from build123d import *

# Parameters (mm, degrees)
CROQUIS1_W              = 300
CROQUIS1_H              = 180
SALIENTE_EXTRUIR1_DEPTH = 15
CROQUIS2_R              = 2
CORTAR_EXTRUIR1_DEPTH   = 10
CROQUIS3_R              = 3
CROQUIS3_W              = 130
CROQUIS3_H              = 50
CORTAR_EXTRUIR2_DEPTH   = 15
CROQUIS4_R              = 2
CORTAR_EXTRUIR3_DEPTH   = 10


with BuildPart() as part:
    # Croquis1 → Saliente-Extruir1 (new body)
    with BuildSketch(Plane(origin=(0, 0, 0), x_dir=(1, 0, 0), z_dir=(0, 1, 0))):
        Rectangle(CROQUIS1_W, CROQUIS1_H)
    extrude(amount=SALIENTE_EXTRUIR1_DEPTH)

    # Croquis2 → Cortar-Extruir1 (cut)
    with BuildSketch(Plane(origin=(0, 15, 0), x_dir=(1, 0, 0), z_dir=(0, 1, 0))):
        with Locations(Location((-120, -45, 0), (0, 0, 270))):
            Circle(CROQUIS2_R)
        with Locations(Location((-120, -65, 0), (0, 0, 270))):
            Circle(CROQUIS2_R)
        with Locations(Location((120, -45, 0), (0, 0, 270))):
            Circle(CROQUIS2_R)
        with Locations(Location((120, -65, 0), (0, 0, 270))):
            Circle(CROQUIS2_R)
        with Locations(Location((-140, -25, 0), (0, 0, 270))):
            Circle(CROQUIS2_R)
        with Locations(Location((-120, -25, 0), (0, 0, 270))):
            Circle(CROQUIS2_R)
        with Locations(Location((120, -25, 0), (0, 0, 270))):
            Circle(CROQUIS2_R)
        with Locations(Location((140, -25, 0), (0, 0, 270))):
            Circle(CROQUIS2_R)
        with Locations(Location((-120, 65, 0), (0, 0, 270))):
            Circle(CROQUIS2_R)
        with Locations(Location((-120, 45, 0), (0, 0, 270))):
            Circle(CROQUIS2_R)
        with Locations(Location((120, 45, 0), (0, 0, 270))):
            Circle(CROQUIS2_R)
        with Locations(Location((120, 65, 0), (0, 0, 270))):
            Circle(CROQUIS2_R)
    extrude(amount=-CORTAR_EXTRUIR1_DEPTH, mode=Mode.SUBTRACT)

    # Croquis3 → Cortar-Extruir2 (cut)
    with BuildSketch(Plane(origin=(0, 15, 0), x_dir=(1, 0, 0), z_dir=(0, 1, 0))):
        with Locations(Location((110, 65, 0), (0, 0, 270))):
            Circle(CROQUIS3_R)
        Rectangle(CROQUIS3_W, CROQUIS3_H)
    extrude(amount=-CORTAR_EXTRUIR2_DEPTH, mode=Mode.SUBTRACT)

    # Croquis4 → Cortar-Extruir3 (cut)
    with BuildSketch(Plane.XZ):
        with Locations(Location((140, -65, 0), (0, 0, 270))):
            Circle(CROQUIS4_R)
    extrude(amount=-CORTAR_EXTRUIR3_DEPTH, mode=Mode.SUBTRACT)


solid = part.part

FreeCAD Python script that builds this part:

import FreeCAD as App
import Part
import Sketcher
Q = App.Units.Quantity


def add_polygon(sketch, points):
    """Adds a closed chain of lines whose ends are joined by coincident constraints."""
    first, n = sketch.GeometryCount, len(points)
    for a, b in zip(points, points[1:] + points[:1]):
        sketch.addGeometry(Part.LineSegment(App.Vector(*a, 0), App.Vector(*b, 0)), False)
    for i in range(n):
        sketch.addConstraint(Sketcher.Constraint("Coincident", first + i, 2, first + (i + 1) % n, 1))

doc = App.newDocument("Part")
body = doc.addObject("PartDesign::Body", "Body")

# Sketch on XZ plane
sketch1 = doc.addObject("Sketcher::SketchObject", "Sketch")
body.addObject(sketch1)
sketch1.AttachmentSupport = (doc.XZ_Plane, [""])
sketch1.MapMode = "FlatFace"
add_polygon(sketch1, [(-150, -90), (-150, 90), (150, 90), (150, -90)])  # lines 0-3
sketch1.addConstraint([
    Sketcher.Constraint("Vertical", 0),
    Sketcher.Constraint("Horizontal", 1),
    Sketcher.Constraint("Vertical", 2),
    Sketcher.Constraint("Horizontal", 3),
    Sketcher.Constraint("Symmetric", 0, 2, 2, 2, -1, 1),
    Sketcher.Constraint("DistanceX", 1, 1, 1, 2, Q("300 mm")),
    Sketcher.Constraint("DistanceY", 0, 1, 0, 2, Q("180 mm")),
])
pad1 = doc.addObject("PartDesign::Pad", "Pad")
body.addObject(pad1)
pad1.Profile = sketch1
pad1.Length = 15
pad1.Reversed = True

# Sketch on XZ plane
sketch2 = doc.addObject("Sketcher::SketchObject", "Sketch001")
body.addObject(sketch2)
sketch2.AttachmentSupport = (doc.XZ_Plane, [""])
sketch2.MapMode = "FlatFace"
sketch2.AttachmentOffset = App.Placement(App.Vector(0, 0, -15), App.Rotation())
sketch2.addGeometry([
    Part.Circle(App.Vector(-120, 45, 0), App.Vector(0, 0, 1), 2),  # 0
    Part.Circle(App.Vector(-120, 65, 0), App.Vector(0, 0, 1), 2),  # 1
    Part.Circle(App.Vector(120, 45, 0), App.Vector(0, 0, 1), 2),  # 2
    Part.Circle(App.Vector(120, 65, 0), App.Vector(0, 0, 1), 2),  # 3
    Part.Circle(App.Vector(-140, 25, 0), App.Vector(0, 0, 1), 2),  # 4
    Part.Circle(App.Vector(-120, 25, 0), App.Vector(0, 0, 1), 2),  # 5
    Part.Circle(App.Vector(120, 25, 0), App.Vector(0, 0, 1), 2),  # 6
    Part.Circle(App.Vector(140, 25, 0), App.Vector(0, 0, 1), 2),  # 7
    Part.Circle(App.Vector(-120, -65, 0), App.Vector(0, 0, 1), 2),  # 8
    Part.Circle(App.Vector(-120, -45, 0), App.Vector(0, 0, 1), 2),  # 9
    Part.Circle(App.Vector(120, -45, 0), App.Vector(0, 0, 1), 2),  # 10
    Part.Circle(App.Vector(120, -65, 0), App.Vector(0, 0, 1), 2),  # 11
], False)
sketch2.addConstraint([
    Sketcher.Constraint("Equal", 0, 1),
    Sketcher.Constraint("Equal", 1, 2),
    Sketcher.Constraint("Equal", 2, 3),
    Sketcher.Constraint("Equal", 3, 4),
    Sketcher.Constraint("Equal", 4, 5),
    Sketcher.Constraint("Equal", 5, 6),
    Sketcher.Constraint("Equal", 6, 7),
    Sketcher.Constraint("Equal", 7, 8),
    Sketcher.Constraint("Equal", 8, 9),
    Sketcher.Constraint("Equal", 9, 10),
    Sketcher.Constraint("Equal", 10, 11),
    Sketcher.Constraint("Symmetric", 3, 3, 8, 3, -1, 1),
    Sketcher.Constraint("Symmetric", 2, 3, 9, 3, -1, 1),
    Sketcher.Constraint("Symmetric", 0, 3, 10, 3, -1, 1),
    Sketcher.Constraint("Symmetric", 1, 3, 11, 3, -1, 1),
    Sketcher.Constraint("Symmetric", 0, 3, 2, 3, -2),
    Sketcher.Constraint("Symmetric", 1, 3, 3, 3, -2),
    Sketcher.Constraint("Symmetric", 5, 3, 6, 3, -2),
    Sketcher.Constraint("Symmetric", 4, 3, 7, 3, -2),
    Sketcher.Constraint("Horizontal", 4, 3, 5, 3),
    Sketcher.Constraint("Vertical", 0, 3, 1, 3),
    Sketcher.Constraint("Vertical", 1, 3, 5, 3),
    Sketcher.Constraint("Diameter", 0, Q("4 mm")),
    Sketcher.Constraint("DistanceX", 0, 3, -1, 1, Q("120 mm")),
    Sketcher.Constraint("DistanceY", -1, 1, 0, 3, Q("45 mm")),
    Sketcher.Constraint("DistanceY", -1, 1, 1, 3, Q("65 mm")),
    Sketcher.Constraint("DistanceX", 4, 3, -1, 1, Q("140 mm")),
    Sketcher.Constraint("DistanceY", -1, 1, 4, 3, Q("25 mm")),
])
pocket1 = doc.addObject("PartDesign::Pocket", "Pocket")
body.addObject(pocket1)
pocket1.Profile = sketch2
pocket1.Length = 10
pocket1.Reversed = True

# Sketch on XZ plane
sketch3 = doc.addObject("Sketcher::SketchObject", "Sketch002")
body.addObject(sketch3)
sketch3.AttachmentSupport = (doc.XZ_Plane, [""])
sketch3.MapMode = "FlatFace"
sketch3.AttachmentOffset = App.Placement(App.Vector(0, 0, -15), App.Rotation())
sketch3.addGeometry(Part.Circle(App.Vector(110, -65, 0), App.Vector(0, 0, 1), 3), False)  # 0
add_polygon(sketch3, [(-65, -25), (-65, 25), (65, 25), (65, -25)])  # lines 1-4
sketch3.addConstraint([
    Sketcher.Constraint("Vertical", 1),
    Sketcher.Constraint("Horizontal", 2),
    Sketcher.Constraint("Vertical", 3),
    Sketcher.Constraint("Horizontal", 4),
    Sketcher.Constraint("Symmetric", 1, 2, 3, 2, -1, 1),
    Sketcher.Constraint("Diameter", 0, Q("6 mm")),
    Sketcher.Constraint("DistanceX", 2, 1, 2, 2, Q("130 mm")),
    Sketcher.Constraint("DistanceY", 1, 1, 1, 2, Q("50 mm")),
    Sketcher.Constraint("DistanceX", -1, 1, 0, 3, Q("110 mm")),
    Sketcher.Constraint("DistanceY", 0, 3, -1, 1, Q("65 mm")),
])
pocket2 = doc.addObject("PartDesign::Pocket", "Pocket001")
body.addObject(pocket2)
pocket2.Profile = sketch3
pocket2.Length = 15
pocket2.Reversed = True

# Sketch on XZ plane
sketch4 = doc.addObject("Sketcher::SketchObject", "Sketch003")
body.addObject(sketch4)
sketch4.AttachmentSupport = (doc.XZ_Plane, [""])
sketch4.MapMode = "FlatFace"
sketch4.addGeometry(Part.Circle(App.Vector(140, -65, 0), App.Vector(0, 0, 1), 2), False)
sketch4.addConstraint([
    Sketcher.Constraint("Diameter", 0, Q("4 mm")),
    Sketcher.Constraint("DistanceX", -1, 1, 0, 3, Q("140 mm")),
    Sketcher.Constraint("DistanceY", 0, 3, -1, 1, Q("65 mm")),
])
pocket3 = doc.addObject("PartDesign::Pocket", "Pocket002")
body.addObject(pocket3)
pocket3.Profile = sketch4
pocket3.Length = 10

doc.recompute()
